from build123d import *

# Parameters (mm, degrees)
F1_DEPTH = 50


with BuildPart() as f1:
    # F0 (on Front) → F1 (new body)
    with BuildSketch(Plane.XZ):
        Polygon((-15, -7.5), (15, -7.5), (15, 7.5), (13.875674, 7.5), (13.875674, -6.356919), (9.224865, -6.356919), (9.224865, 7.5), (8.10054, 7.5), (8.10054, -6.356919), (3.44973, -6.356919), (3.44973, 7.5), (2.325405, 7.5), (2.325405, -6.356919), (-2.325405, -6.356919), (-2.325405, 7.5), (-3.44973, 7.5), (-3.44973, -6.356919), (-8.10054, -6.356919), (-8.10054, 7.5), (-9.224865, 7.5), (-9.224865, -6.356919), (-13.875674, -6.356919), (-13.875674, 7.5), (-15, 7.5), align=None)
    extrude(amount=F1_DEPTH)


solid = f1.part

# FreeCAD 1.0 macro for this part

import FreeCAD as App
import Part
import Sketcher
from FreeCAD import Vector
Q = App.Units.Quantity

doc = App.newDocument("Part")
body = doc.addObject("PartDesign::Body", "Body")

sketch1 = body.newObject("Sketcher::SketchObject", "Sketch")
sketch1.AttachmentSupport = (doc.getObject("XZ_Plane"), [""])
sketch1.MapMode = "FlatFace"
sketch1.addGeometry([
    Part.LineSegment(Vector(-15, -7.5, 0), Vector(15, -7.5, 0)),
    Part.LineSegment(Vector(15, -7.5, 0), Vector(15, 7.5, 0)),
    Part.LineSegment(Vector(15, 7.5, 0), Vector(13.9, 7.5, 0)),
    Part.LineSegment(Vector(13.9, 7.5, 0), Vector(13.9, -6.4, 0)),
    Part.LineSegment(Vector(13.9, -6.4, 0), Vector(9.2, -6.4, 0)),
    Part.LineSegment(Vector(9.2, -6.4, 0), Vector(9.2, 7.5, 0)),
    Part.LineSegment(Vector(9.2, 7.5, 0), Vector(8.1, 7.5, 0)),
    Part.LineSegment(Vector(8.1, 7.5, 0), Vector(8.1, -6.4, 0)),
    Part.LineSegment(Vector(8.1, -6.4, 0), Vector(3.4, -6.4, 0)),
    Part.LineSegment(Vector(3.4, -6.4, 0), Vector(3.4, 7.5, 0)),
    Part.LineSegment(Vector(3.4, 7.5, 0), Vector(2.3, 7.5, 0)),
    Part.LineSegment(Vector(2.3, 7.5, 0), Vector(2.3, -6.4, 0)),
    Part.LineSegment(Vector(2.3, -6.4, 0), Vector(-2.3, -6.4, 0)),
    Part.LineSegment(Vector(-2.3, -6.4, 0), Vector(-2.3, 7.5, 0)),
    Part.LineSegment(Vector(-2.3, 7.5, 0), Vector(-3.4, 7.5, 0)),
    Part.LineSegment(Vector(-3.4, 7.5, 0), Vector(-3.4, -6.4, 0)),
    Part.LineSegment(Vector(-3.4, -6.4, 0), Vector(-8.1, -6.4, 0)),
    Part.LineSegment(Vector(-8.1, -6.4, 0), Vector(-8.1, 7.5, 0)),
    Part.LineSegment(Vector(-8.1, 7.5, 0), Vector(-9.2, 7.5, 0)),
    Part.LineSegment(Vector(-9.2, 7.5, 0), Vector(-9.2, -6.4, 0)),
    Part.LineSegment(Vector(-9.2, -6.4, 0), Vector(-13.9, -6.4, 0)),
    Part.LineSegment(Vector(-13.9, -6.4, 0), Vector(-13.9, 7.5, 0)),
    Part.LineSegment(Vector(-13.9, 7.5, 0), Vector(-15, 7.5, 0)),
    Part.LineSegment(Vector(-15, 7.5, 0), Vector(-15, -7.5, 0)),
], False)
sketch1.addConstraint([
    Sketcher.Constraint("Coincident", 0, 2, 1, 1),
    Sketcher.Constraint("Coincident", 1, 2, 2, 1),
    Sketcher.Constraint("Coincident", 2, 2, 3, 1),
    Sketcher.Constraint("Coincident", 3, 2, 4, 1),
    Sketcher.Constraint("Coincident", 4, 2, 5, 1),
    Sketcher.Constraint("Coincident", 5, 2, 6, 1),
    Sketcher.Constraint("Coincident", 6, 2, 7, 1),
    Sketcher.Constraint("Coincident", 7, 2, 8, 1),
    Sketcher.Constraint("Coincident", 8, 2, 9, 1),
    Sketcher.Constraint("Coincident", 9, 2, 10, 1),
    Sketcher.Constraint("Coincident", 10, 2, 11, 1),
    Sketcher.Constraint("Coincident", 11, 2, 12, 1),
    Sketcher.Constraint("Coincident", 12, 2, 13, 1),
    Sketcher.Constraint("Coincident", 13, 2, 14, 1),
    Sketcher.Constraint("Coincident", 14, 2, 15, 1),
    Sketcher.Constraint("Coincident", 15, 2, 16, 1),
    Sketcher.Constraint("Coincident", 16, 2, 17, 1),
    Sketcher.Constraint("Coincident", 17, 2, 18, 1),
    Sketcher.Constraint("Coincident", 18, 2, 19, 1),
    Sketcher.Constraint("Coincident", 19, 2, 20, 1),
    Sketcher.Constraint("Coincident", 20, 2, 21, 1),
    Sketcher.Constraint("Coincident", 21, 2, 22, 1),
    Sketcher.Constraint("Coincident", 22, 2, 23, 1),
    Sketcher.Constraint("Coincident", 23, 2, 0, 1),
    Sketcher.Constraint("Horizontal", 0),
    Sketcher.Constraint("Vertical", 1),
    Sketcher.Constraint("Horizontal", 2),
    Sketcher.Constraint("Vertical", 3),
    Sketcher.Constraint("Horizontal", 4),
    Sketcher.Constraint("Vertical", 5),
    Sketcher.Constraint("Horizontal", 6),
    Sketcher.Constraint("Vertical", 7),
    Sketcher.Constraint("Horizontal", 8),
    Sketcher.Constraint("Vertical", 9),
    Sketcher.Constraint("Horizontal", 10),
    Sketcher.Constraint("Vertical", 11),
    Sketcher.Constraint("Horizontal", 12),
    Sketcher.Constraint("Vertical", 13),
    Sketcher.Constraint("Horizontal", 14),
    Sketcher.Constraint("Vertical", 15),
    Sketcher.Constraint("Horizontal", 16),
    Sketcher.Constraint("Vertical", 17),
    Sketcher.Constraint("Horizontal", 18),
    Sketcher.Constraint("Vertical", 19),
    Sketcher.Constraint("Horizontal", 20),
    Sketcher.Constraint("Vertical", 21),
    Sketcher.Constraint("Horizontal", 22),
    Sketcher.Constraint("Vertical", 23),
    Sketcher.Constraint("Symmetric", 0, 2, 22, 2, -1, 1),
    Sketcher.Constraint("Symmetric", 10, 2, 13, 2, -2),
    Sketcher.Constraint("Symmetric", 8, 2, 15, 2, -2),
    Sketcher.Constraint("Symmetric", 6, 2, 17, 2, -2),
    Sketcher.Constraint("Symmetric", 4, 2, 19, 2, -2),
    Sketcher.Constraint("Symmetric", 2, 2, 21, 2, -2),
    Sketcher.Constraint("Horizontal", 2, 2, 5, 2),
    Sketcher.Constraint("Horizontal", 4, 2, 7, 2),
    Sketcher.Constraint("Horizontal", 6, 2, 9, 2),
    Sketcher.Constraint("Horizontal", 8, 2, 11, 2),
    Sketcher.Constraint("Equal", 2, 6),
    Sketcher.Constraint("Equal", 4, 8),
    Sketcher.Constraint("Equal", 6, 10),
    Sketcher.Constraint("Equal", 8, 12),
    Sketcher.Constraint("DistanceX", 0, 1, 0, 2, Q("30 mm")),
    Sketcher.Constraint("DistanceY", 1, 1, 1, 2, Q("15 mm")),
    Sketcher.Constraint("DistanceX", 4, 2, 4, 1, Q("4.650809 mm")),
    Sketcher.Constraint("DistanceY", 3, 2, 3, 1, Q("13.856919 mm")),
])
pad1 = body.newObject("PartDesign::Pad", "Pad")
pad1.Profile = sketch1
pad1.Length = 50

doc.recompute()
